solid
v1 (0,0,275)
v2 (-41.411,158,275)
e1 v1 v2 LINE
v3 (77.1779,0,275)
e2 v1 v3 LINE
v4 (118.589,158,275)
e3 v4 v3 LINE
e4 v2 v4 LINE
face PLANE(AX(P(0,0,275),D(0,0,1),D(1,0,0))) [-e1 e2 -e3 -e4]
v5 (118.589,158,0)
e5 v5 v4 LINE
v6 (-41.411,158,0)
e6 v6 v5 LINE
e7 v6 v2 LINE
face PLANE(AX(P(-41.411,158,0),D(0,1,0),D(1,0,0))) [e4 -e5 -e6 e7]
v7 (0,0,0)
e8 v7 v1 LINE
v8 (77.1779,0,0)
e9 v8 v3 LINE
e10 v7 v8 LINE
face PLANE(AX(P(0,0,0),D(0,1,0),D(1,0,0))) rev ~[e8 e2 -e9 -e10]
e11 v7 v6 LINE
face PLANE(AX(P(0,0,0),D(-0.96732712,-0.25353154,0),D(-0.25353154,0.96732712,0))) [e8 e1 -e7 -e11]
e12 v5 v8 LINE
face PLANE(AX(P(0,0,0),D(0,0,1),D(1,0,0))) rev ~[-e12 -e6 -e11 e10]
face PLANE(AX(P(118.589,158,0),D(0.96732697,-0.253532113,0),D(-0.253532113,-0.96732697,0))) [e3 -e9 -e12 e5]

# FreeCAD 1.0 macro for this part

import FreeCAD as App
import Part
import Sketcher

V = App.Vector
Q = App.Units.Quantity


def add_polygon(sketch, points):
    """Adds a closed chain of lines whose ends are joined by coincident constraints."""
    first, n = sketch.GeometryCount, len(points)
    for a, b in zip(points, points[1:] + points[:1]):
        sketch.addGeometry(Part.LineSegment(App.Vector(*a, 0), App.Vector(*b, 0)), False)
    for i in range(n):
        sketch.addConstraint(Sketcher.Constraint("Coincident", first + i, 2, first + (i + 1) % n, 1))

doc = App.newDocument("Part")
body = doc.addObject("PartDesign::Body", "Body")

sketch1 = body.newObject("Sketcher::SketchObject", "Sketch")
sketch1.AttachmentSupport = (doc.getObject("XY_Plane"), [""])
sketch1.MapMode = "FlatFace"
add_polygon(sketch1, [(-41, 158), (0, 0), (77, 0), (119, 158)])
sketch1.addConstraint([
    Sketcher.Constraint("Horizontal", 1),
    Sketcher.Constraint("Horizontal", 3),
    Sketcher.Constraint("Coincident", 0, 2, -1, 1),
    Sketcher.Constraint("Equal", 0, 2),
    Sketcher.Constraint("DistanceX", 3, 2, 3, 1, Q("160 mm")),
    Sketcher.Constraint("DistanceY", -1, 1, 2, 2, Q("158 mm")),
    Sketcher.Constraint("DistanceX", 1, 1, 1, 2, Q("77.178 mm")),
])
pad1 = body.newObject("PartDesign::Pad", "Pad")
pad1.Profile = sketch1
pad1.Length = 275

doc.recompute()
